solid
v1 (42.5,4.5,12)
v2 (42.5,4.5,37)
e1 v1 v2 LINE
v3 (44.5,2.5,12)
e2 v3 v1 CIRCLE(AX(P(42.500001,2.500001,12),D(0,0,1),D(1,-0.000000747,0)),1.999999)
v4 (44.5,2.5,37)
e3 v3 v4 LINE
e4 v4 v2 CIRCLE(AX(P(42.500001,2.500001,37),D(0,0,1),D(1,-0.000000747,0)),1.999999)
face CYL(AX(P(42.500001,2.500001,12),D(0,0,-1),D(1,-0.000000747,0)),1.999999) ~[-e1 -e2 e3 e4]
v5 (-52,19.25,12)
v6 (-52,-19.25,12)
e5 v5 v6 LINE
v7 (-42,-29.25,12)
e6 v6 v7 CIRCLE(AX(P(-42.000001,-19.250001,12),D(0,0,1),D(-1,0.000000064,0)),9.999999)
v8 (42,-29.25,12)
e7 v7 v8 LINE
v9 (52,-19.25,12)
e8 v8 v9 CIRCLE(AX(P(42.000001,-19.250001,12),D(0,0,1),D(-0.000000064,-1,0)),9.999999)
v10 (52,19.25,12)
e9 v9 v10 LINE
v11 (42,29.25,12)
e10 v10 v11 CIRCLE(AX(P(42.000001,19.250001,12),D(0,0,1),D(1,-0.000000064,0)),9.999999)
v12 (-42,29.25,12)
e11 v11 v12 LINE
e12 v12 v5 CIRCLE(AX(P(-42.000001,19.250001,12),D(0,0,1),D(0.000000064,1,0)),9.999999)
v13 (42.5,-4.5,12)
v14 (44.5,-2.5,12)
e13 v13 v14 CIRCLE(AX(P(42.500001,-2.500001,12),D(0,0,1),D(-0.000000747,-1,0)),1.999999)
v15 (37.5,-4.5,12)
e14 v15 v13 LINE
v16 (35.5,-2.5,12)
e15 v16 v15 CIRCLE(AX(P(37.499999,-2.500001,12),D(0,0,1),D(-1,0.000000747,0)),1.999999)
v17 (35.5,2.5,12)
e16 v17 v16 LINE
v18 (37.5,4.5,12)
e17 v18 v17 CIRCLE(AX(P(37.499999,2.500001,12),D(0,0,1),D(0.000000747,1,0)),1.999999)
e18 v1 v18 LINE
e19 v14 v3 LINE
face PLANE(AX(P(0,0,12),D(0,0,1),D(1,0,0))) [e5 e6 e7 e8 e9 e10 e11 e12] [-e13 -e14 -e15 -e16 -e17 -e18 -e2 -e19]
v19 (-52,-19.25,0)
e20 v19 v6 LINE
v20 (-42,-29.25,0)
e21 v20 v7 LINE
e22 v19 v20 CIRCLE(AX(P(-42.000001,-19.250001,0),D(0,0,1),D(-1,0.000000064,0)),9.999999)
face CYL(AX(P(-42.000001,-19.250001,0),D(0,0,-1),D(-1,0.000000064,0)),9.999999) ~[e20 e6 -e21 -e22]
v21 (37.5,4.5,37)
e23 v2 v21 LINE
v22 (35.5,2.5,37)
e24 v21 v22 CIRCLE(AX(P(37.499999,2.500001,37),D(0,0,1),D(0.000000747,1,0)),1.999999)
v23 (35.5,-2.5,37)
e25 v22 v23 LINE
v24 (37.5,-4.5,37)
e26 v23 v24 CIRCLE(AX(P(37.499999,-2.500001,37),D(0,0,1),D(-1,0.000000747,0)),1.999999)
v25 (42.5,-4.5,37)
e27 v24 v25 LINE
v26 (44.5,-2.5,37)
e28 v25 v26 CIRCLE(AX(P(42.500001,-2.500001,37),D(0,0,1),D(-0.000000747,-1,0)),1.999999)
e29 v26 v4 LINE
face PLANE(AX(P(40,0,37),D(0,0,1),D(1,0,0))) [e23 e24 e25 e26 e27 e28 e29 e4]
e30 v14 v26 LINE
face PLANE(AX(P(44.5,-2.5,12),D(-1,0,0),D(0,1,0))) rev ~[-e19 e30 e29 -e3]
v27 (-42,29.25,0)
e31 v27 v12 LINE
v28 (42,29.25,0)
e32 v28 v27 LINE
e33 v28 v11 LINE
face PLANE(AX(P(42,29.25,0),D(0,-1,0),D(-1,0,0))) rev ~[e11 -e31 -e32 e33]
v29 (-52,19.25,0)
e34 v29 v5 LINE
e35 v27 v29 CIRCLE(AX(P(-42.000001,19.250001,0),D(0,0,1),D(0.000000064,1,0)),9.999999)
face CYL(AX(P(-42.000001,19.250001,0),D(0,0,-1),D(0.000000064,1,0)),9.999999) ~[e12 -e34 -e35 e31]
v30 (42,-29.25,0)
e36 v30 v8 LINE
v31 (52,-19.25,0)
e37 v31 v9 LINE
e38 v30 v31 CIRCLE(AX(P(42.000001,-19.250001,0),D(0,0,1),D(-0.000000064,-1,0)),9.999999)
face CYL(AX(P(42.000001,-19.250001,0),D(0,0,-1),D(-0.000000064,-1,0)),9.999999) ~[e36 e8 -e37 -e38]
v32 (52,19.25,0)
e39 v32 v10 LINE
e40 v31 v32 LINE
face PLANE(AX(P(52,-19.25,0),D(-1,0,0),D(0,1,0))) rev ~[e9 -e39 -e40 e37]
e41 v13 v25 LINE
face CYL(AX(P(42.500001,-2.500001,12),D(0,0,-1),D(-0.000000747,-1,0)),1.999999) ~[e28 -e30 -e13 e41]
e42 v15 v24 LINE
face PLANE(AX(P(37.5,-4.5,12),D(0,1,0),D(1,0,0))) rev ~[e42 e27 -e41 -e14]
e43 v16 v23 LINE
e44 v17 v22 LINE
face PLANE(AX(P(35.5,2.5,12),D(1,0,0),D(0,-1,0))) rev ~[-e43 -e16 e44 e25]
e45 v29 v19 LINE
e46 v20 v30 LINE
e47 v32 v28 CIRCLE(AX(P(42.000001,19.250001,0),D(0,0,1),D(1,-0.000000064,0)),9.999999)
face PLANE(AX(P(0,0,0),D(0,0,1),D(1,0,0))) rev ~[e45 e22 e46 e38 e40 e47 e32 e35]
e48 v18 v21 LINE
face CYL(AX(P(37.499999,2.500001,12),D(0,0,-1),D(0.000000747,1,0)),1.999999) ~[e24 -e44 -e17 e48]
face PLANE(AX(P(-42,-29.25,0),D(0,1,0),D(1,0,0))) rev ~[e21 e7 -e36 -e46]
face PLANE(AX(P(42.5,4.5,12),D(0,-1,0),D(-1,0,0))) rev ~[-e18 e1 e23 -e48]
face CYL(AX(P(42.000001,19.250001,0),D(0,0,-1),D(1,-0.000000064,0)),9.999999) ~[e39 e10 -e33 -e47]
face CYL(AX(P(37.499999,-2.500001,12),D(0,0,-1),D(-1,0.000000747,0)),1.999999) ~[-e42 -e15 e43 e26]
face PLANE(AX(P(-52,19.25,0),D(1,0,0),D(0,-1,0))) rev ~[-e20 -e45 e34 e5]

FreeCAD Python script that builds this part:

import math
import FreeCAD as App
import Part
import Sketcher
Q = App.Units.Quantity

doc = App.newDocument("Part")
body = doc.addObject("PartDesign::Body", "Body")

# Sketch on XY plane
sketch1 = body.newObject("Sketcher::SketchObject", "Sketch")
sketch1.AttachmentSupport = (doc.getObject("XY_Plane"), [""])
sketch1.MapMode = "FlatFace"
sketch1.addGeometry([
    Part.LineSegment(App.Vector(42, 29, 0), App.Vector(-42, 29, 0)),  # 0
    Part.ArcOfCircle(Part.Circle(App.Vector(-42, 19, 0), App.Vector(0, 0, 1), 10), math.radians(90), math.radians(180)),  # 1
    Part.LineSegment(App.Vector(-52, 19, 0), App.Vector(-52, -19, 0)),  # 2
    Part.ArcOfCircle(Part.Circle(App.Vector(-42, -19, 0), App.Vector(0, 0, 1), 10), math.radians(180), math.radians(270)),  # 3
    Part.LineSegment(App.Vector(-42, -29, 0), App.Vector(42, -29, 0)),  # 4
    Part.ArcOfCircle(Part.Circle(App.Vector(42, -19, 0), App.Vector(0, 0, 1), 10), math.radians(-90), math.radians(0)),  # 5
    Part.LineSegment(App.Vector(52, -19, 0), App.Vector(52, 19, 0)),  # 6
    Part.ArcOfCircle(Part.Circle(App.Vector(42, 19, 0), App.Vector(0, 0, 1), 10), math.radians(0), math.radians(90)),  # 7
], False)
sketch1.addConstraint([
    Sketcher.Constraint("Tangent", 0, 2, 1, 1),
    Sketcher.Constraint("Tangent", 1, 2, 2, 1),
    Sketcher.Constraint("Tangent", 2, 2, 3, 1),
    Sketcher.Constraint("Tangent", 3, 2, 4, 1),
    Sketcher.Constraint("Tangent", 4, 2, 5, 1),
    Sketcher.Constraint("Tangent", 5, 2, 6, 1),
    Sketcher.Constraint("Tangent", 6, 2, 7, 1),
    Sketcher.Constraint("Tangent", 7, 2, 0, 1),
    Sketcher.Constraint("Horizontal", 0),
    Sketcher.Constraint("Vertical", 2),
    Sketcher.Constraint("Horizontal", 4),
    Sketcher.Constraint("Vertical", 6),
    Sketcher.Constraint("Equal", 1, 3),
    Sketcher.Constraint("Equal", 3, 5),
    Sketcher.Constraint("Equal", 5, 7),
    Sketcher.Constraint("Symmetric", 1, 3, 5, 3, -1, 1),
    Sketcher.Constraint("Radius", 1, Q("9.999999 mm")),
    Sketcher.Constraint("DistanceX", 0, 2, 0, 1, Q("84 mm")),
    Sketcher.Constraint("DistanceY", 2, 2, 2, 1, Q("38.5 mm")),
])
pad1 = body.newObject("PartDesign::Pad", "Pad")
pad1.Profile = sketch1
pad1.Length = 12

# Sketch on XY plane
sketch2 = body.newObject("Sketcher::SketchObject", "Sketch001")
sketch2.AttachmentSupport = (doc.getObject("XY_Plane"), [""])
sketch2.MapMode = "FlatFace"
sketch2.AttachmentOffset = App.Placement(App.Vector(0, 0, 12), App.Rotation())
sketch2.addGeometry([
    Part.LineSegment(App.Vector(42.5, 4.5, 0), App.Vector(37.5, 4.5, 0)),  # 0
    Part.ArcOfCircle(Part.Circle(App.Vector(37.5, 2.5, 0), App.Vector(0, 0, 1), 2), math.radians(90), math.radians(180)),  # 1
    Part.LineSegment(App.Vector(35.5, 2.5, 0), App.Vector(35.5, -2.5, 0)),  # 2
    Part.ArcOfCircle(Part.Circle(App.Vector(37.5, -2.5, 0), App.Vector(0, 0, 1), 2), math.radians(180), math.radians(270)),  # 3
    Part.LineSegment(App.Vector(37.5, -4.5, 0), App.Vector(42.5, -4.5, 0)),  # 4
    Part.ArcOfCircle(Part.Circle(App.Vector(42.5, -2.5, 0), App.Vector(0, 0, 1), 2), math.radians(-90), math.radians(0)),  # 5
    Part.LineSegment(App.Vector(44.5, -2.5, 0), App.Vector(44.5, 2.5, 0)),  # 6
    Part.ArcOfCircle(Part.Circle(App.Vector(42.5, 2.5, 0), App.Vector(0, 0, 1), 2), math.radians(0), math.radians(90)),  # 7
], False)
sketch2.addConstraint([
    Sketcher.Constraint("Tangent", 0, 2, 1, 1),
    Sketcher.Constraint("Tangent", 1, 2, 2, 1),
    Sketcher.Constraint("Tangent", 2, 2, 3, 1),
    Sketcher.Constraint("Tangent", 3, 2, 4, 1),
    Sketcher.Constraint("Tangent", 4, 2, 5, 1),
    Sketcher.Constraint("Tangent", 5, 2, 6, 1),
    Sketcher.Constraint("Tangent", 6, 2, 7, 1),
    Sketcher.Constraint("Tangent", 7, 2, 0, 1),
    Sketcher.Constraint("Horizontal", 0),
    Sketcher.Constraint("Vertical", 2),
    Sketcher.Constraint("Horizontal", 4),
    Sketcher.Constraint("Vertical", 6),
    Sketcher.Constraint("Equal", 1, 3),
    Sketcher.Constraint("Equal", 3, 5),
    Sketcher.Constraint("Equal", 5, 7),
    Sketcher.Constraint("Equal", 4, 2),
    Sketcher.Constraint("Radius", 1, Q("1.999999 mm")),
    Sketcher.Constraint("DistanceX", 0, 2, 0, 1, Q("5 mm")),
    Sketcher.Constraint("DistanceX", -1, 1, 1, 3, Q("37.499999 mm")),
    Sketcher.Constraint("DistanceY", -1, 1, 1, 3, Q("2.500001 mm")),
])
pad2 = body.newObject("PartDesign::Pad", "Pad001")
pad2.Profile = sketch2
pad2.Length = 25

doc.recompute()
